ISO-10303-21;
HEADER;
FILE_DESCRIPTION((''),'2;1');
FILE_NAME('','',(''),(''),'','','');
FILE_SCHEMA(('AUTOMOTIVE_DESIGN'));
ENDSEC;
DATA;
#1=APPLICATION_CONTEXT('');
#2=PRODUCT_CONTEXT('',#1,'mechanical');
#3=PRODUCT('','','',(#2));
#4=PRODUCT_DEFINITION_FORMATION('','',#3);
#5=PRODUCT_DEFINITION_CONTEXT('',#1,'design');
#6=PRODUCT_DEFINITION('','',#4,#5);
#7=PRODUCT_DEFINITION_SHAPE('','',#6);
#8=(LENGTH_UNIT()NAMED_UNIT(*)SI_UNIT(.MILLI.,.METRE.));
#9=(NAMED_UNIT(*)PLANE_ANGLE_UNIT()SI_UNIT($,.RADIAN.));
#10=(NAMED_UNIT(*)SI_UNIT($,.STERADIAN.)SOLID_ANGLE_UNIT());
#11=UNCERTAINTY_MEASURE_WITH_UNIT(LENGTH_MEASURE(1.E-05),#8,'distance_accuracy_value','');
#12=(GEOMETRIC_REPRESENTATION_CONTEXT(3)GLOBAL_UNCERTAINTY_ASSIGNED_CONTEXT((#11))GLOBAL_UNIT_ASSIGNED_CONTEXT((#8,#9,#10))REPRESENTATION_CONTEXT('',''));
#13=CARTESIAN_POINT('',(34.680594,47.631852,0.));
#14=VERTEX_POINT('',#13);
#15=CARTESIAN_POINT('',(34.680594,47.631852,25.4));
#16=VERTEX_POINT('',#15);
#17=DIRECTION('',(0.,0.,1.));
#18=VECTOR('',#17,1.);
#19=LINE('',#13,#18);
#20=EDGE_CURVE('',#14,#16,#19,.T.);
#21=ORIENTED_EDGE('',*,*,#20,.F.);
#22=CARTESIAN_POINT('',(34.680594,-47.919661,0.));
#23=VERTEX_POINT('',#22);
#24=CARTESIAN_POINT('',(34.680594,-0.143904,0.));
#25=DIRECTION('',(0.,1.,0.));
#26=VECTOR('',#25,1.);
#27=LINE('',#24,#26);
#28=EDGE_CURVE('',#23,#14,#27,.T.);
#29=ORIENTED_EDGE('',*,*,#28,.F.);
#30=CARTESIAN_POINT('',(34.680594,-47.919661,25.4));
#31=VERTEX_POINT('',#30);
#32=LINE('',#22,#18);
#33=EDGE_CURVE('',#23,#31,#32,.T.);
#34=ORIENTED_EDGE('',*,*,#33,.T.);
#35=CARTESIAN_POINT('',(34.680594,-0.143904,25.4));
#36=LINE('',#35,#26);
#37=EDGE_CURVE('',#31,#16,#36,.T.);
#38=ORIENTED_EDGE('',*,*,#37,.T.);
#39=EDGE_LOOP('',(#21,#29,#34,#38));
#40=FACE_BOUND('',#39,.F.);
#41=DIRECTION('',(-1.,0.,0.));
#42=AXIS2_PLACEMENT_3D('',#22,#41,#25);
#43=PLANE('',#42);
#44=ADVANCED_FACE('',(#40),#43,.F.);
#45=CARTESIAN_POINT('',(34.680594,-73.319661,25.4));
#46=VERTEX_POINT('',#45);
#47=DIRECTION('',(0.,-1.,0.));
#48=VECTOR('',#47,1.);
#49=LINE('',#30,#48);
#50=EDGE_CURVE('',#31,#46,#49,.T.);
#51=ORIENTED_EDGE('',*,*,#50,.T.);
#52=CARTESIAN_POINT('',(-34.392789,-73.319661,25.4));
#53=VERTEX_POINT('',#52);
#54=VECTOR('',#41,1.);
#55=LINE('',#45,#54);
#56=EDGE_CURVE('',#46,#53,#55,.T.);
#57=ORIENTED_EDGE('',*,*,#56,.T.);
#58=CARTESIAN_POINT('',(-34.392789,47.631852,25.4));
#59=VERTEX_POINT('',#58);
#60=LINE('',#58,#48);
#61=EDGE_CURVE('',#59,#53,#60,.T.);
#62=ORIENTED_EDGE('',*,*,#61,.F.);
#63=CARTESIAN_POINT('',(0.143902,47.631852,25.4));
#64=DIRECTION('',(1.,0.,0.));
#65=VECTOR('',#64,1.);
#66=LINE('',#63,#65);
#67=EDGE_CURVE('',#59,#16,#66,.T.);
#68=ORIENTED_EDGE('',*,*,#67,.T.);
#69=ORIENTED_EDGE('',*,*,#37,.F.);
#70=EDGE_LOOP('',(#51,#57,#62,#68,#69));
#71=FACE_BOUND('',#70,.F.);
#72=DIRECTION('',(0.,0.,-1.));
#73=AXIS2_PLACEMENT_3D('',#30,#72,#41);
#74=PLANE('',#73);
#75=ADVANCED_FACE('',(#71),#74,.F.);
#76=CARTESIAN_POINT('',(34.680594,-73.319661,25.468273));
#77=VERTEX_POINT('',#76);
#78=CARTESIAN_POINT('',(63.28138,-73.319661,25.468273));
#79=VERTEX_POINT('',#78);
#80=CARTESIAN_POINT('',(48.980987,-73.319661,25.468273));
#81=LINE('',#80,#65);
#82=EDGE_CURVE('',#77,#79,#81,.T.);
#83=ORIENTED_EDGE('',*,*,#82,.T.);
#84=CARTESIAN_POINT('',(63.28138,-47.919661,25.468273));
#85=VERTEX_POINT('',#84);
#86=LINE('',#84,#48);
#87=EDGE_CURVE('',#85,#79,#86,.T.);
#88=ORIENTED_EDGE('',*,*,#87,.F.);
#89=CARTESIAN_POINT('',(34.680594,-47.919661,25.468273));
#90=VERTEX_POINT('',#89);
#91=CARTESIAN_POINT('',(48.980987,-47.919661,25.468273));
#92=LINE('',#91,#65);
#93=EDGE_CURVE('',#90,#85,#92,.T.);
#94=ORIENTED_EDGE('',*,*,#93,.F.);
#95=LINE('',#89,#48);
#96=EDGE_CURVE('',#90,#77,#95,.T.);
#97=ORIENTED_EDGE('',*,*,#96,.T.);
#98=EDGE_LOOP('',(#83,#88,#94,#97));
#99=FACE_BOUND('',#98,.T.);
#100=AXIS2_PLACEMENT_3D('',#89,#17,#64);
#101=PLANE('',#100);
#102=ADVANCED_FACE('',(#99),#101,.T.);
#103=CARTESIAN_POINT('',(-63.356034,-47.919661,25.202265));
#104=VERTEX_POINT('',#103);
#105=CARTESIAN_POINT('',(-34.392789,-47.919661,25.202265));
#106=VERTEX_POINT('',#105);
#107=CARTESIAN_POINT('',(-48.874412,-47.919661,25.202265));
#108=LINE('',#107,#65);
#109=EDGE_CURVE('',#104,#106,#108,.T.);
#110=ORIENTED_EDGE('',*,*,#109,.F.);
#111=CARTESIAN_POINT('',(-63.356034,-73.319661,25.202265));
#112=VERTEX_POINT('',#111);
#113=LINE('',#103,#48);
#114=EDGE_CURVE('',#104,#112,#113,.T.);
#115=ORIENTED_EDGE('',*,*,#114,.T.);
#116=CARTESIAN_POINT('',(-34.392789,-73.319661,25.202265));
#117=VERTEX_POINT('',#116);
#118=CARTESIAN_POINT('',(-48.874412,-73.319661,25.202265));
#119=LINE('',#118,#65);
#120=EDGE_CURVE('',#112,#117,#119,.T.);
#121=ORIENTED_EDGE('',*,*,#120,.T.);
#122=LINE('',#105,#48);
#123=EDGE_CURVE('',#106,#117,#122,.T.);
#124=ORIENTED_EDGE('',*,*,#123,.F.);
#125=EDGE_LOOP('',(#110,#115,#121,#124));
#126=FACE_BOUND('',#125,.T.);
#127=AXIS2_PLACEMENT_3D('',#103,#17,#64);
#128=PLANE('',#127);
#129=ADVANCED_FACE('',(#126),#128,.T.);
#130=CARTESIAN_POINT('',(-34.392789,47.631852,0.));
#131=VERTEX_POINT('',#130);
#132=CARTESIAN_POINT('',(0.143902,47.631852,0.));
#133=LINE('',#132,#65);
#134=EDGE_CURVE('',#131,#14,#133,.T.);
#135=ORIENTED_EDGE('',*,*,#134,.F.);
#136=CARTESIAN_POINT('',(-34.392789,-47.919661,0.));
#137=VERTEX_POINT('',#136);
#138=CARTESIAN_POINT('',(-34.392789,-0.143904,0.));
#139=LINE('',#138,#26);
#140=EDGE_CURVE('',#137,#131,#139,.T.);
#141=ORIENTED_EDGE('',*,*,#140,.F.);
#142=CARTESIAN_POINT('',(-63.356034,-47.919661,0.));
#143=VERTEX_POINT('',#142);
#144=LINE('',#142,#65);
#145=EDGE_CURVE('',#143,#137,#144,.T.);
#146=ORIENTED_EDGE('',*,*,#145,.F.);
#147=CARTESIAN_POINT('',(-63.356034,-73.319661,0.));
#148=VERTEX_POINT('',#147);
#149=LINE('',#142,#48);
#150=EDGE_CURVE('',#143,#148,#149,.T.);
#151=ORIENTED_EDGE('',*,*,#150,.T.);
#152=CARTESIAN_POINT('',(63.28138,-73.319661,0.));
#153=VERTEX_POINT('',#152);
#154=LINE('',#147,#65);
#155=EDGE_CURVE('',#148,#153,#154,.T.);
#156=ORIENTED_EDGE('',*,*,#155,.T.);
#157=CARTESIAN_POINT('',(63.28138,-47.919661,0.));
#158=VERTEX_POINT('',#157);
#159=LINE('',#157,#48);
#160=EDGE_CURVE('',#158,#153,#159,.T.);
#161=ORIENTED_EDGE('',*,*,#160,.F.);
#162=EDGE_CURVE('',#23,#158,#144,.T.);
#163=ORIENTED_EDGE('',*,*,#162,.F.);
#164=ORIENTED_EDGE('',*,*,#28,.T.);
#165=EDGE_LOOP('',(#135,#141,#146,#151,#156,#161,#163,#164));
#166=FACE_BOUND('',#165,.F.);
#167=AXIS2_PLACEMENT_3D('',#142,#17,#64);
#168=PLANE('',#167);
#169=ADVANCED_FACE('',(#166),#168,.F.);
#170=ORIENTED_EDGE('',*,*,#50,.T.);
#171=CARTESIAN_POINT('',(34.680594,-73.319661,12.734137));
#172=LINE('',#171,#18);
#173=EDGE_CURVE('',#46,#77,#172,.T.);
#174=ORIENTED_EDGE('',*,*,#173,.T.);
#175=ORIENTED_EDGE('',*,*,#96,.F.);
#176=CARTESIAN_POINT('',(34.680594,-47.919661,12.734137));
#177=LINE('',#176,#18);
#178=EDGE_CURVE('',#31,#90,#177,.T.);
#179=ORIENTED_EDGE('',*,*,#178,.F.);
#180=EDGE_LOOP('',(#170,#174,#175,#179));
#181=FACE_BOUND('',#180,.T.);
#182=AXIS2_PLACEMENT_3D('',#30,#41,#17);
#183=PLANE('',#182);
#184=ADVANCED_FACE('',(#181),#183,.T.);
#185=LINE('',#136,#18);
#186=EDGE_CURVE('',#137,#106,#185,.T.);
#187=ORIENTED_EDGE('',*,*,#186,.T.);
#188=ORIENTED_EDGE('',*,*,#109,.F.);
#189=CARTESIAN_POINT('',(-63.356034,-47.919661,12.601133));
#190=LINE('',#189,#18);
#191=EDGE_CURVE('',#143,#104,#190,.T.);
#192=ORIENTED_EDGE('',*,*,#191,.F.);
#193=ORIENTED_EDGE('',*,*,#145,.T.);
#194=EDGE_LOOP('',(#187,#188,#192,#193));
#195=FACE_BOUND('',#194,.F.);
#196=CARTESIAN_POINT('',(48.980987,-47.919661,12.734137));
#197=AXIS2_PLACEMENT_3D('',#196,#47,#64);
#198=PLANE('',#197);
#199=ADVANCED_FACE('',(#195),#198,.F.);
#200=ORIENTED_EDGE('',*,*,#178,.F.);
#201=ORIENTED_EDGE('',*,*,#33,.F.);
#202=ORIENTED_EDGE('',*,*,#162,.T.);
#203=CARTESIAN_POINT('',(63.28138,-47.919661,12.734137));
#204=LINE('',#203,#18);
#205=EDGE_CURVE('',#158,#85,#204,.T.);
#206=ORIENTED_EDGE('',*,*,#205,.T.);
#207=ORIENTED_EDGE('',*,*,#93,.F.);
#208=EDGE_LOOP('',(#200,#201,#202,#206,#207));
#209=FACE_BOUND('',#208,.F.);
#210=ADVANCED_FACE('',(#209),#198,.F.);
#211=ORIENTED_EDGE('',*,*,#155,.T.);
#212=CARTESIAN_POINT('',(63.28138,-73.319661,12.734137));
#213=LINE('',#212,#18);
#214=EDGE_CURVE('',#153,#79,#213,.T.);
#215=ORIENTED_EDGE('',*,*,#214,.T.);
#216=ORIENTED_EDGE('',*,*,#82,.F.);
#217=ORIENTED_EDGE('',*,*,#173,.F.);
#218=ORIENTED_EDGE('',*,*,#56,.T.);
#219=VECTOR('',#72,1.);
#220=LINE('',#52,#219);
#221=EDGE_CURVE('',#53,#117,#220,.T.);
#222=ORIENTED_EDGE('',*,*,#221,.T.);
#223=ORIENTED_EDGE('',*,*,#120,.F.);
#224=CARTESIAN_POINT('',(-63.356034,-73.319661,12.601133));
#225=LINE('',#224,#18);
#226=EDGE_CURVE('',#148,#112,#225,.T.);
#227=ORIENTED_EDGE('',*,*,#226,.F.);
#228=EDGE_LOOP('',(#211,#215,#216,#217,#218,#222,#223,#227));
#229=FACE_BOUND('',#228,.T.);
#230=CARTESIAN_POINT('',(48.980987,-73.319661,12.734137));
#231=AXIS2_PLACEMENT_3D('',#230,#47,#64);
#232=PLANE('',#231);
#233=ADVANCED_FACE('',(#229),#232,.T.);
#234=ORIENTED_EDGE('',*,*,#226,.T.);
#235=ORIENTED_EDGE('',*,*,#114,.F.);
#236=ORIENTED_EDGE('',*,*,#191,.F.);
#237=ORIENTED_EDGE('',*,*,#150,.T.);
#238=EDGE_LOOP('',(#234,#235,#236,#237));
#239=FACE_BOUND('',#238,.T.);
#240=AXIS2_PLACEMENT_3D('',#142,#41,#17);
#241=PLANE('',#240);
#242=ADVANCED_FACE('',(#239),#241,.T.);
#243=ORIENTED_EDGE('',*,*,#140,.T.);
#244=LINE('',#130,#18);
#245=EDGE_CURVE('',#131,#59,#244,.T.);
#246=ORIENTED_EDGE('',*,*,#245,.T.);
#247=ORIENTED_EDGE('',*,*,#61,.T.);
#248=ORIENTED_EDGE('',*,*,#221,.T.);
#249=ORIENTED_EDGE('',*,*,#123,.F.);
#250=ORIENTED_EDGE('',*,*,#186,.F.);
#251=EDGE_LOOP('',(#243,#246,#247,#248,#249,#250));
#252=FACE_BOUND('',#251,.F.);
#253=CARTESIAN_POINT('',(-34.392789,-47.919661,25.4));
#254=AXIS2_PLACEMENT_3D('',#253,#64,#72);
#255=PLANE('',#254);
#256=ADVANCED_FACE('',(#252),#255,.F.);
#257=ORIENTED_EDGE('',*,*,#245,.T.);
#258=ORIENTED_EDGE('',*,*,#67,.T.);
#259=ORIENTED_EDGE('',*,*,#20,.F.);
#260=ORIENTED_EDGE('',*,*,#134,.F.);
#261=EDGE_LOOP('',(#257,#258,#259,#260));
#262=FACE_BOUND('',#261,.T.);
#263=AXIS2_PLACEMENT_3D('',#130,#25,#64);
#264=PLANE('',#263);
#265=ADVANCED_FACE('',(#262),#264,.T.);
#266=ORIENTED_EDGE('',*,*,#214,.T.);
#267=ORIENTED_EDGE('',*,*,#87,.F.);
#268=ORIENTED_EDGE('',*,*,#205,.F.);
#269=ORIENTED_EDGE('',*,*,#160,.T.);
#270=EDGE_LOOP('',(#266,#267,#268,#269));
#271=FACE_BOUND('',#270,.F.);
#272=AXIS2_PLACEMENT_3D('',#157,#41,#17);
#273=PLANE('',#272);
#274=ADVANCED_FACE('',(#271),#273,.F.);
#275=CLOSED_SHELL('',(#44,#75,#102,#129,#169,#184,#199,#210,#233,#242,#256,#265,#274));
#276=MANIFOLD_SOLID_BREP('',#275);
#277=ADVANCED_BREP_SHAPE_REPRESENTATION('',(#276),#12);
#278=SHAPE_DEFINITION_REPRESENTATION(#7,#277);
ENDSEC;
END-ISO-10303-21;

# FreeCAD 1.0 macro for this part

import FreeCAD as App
import Part
import Sketcher

V = App.Vector
Q = App.Units.Quantity

doc = App.newDocument("Part")
body = doc.addObject("PartDesign::Body", "Body")

# Sketch on XY plane
sketch1 = doc.addObject("Sketcher::SketchObject", "Sketch")
body.addObject(sketch1)
sketch1.AttachmentSupport = (doc.XY_Plane, [""])
sketch1.MapMode = "FlatFace"
sketch1.addGeometry([
    Part.LineSegment(V(-34, 48, 0), V(-34, -48, 0)),
    Part.LineSegment(V(-34, -48, 0), V(35, -48, 0)),
    Part.LineSegment(V(35, -48, 0), V(35, 48, 0)),
    Part.LineSegment(V(35, 48, 0), V(-34, 48, 0)),
], False)
sketch1.addConstraint([
    Sketcher.Constraint("Coincident", 0, 2, 1, 1),
    Sketcher.Constraint("Coincident", 1, 2, 2, 1),
    Sketcher.Constraint("Coincident", 2, 2, 3, 1),
    Sketcher.Constraint("Coincident", 3, 2, 0, 1),
    Sketcher.Constraint("Vertical", 0),
    Sketcher.Constraint("Horizontal", 1),
    Sketcher.Constraint("Vertical", 2),
    Sketcher.Constraint("Horizontal", 3),
    Sketcher.Constraint("DistanceX", 1, 1, 1, 2, 69.073383),
    Sketcher.Constraint("DistanceY", 0, 2, 0, 1, 95.551513),
    Sketcher.Constraint("DistanceX", 0, 2, -1, 1, 34.392789),
    Sketcher.Constraint("DistanceY", 0, 2, -1, 1, 47.919661),
])
pad1 = doc.addObject("PartDesign::Pad", "Pad")
body.addObject(pad1)
pad1.Profile = sketch1
pad1.Length = Q("1 in")

# Sketch on XZ plane
sketch2 = doc.addObject("Sketcher::SketchObject", "Sketch001")
body.addObject(sketch2)
sketch2.AttachmentSupport = (doc.XZ_Plane, [""])
sketch2.MapMode = "FlatFace"
sketch2.AttachmentOffset = App.Placement(V(0, 0, 47.919661), App.Rotation())
sketch2.addGeometry([
    Part.LineSegment(V(34.68, 25.47, 0), V(34.68, 25.4, 0)),  # 0
    Part.LineSegment(V(34.68, 25.4, 0), V(-34.39, 25.4, 0)),  # 1
    Part.LineSegment(V(-34.39, 25.4, 0), V(-34.39, 25.2, 0)),  # 2
    Part.LineSegment(V(-34.39, 25.2, 0), V(-63.36, 25.2, 0)),  # 3
    Part.LineSegment(V(-63.36, 25.2, 0), V(-63.36, 0, 0)),  # 4
    Part.LineSegment(V(-63.36, 0, 0), V(63.28, 0, 0)),  # 5
    Part.LineSegment(V(63.28, 0, 0), V(63.28, 25.47, 0)),  # 6
    Part.LineSegment(V(63.28, 25.47, 0), V(34.68, 25.47, 0)),  # 7
], False)
sketch2.addConstraint([
    Sketcher.Constraint("Coincident", 0, 2, 1, 1),
    Sketcher.Constraint("Coincident", 1, 2, 2, 1),
    Sketcher.Constraint("Coincident", 2, 2, 3, 1),
    Sketcher.Constraint("Coincident", 3, 2, 4, 1),
    Sketcher.Constraint("Coincident", 4, 2, 5, 1),
    Sketcher.Constraint("Coincident", 5, 2, 6, 1),
    Sketcher.Constraint("Coincident", 6, 2, 7, 1),
    Sketcher.Constraint("Coincident", 7, 2, 0, 1),
    Sketcher.Constraint("Vertical", 0),
    Sketcher.Constraint("Horizontal", 1),
    Sketcher.Constraint("Vertical", 2),
    Sketcher.Constraint("Horizontal", 3),
    Sketcher.Constraint("Vertical", 4),
    Sketcher.Constraint("Horizontal", 5),
    Sketcher.Constraint("Vertical", 6),
    Sketcher.Constraint("Horizontal", 7),
    Sketcher.Constraint("PointOnObject", 4, 2, -1),
    Sketcher.Constraint("DistanceY", -1, 1, 0, 2, Q("1 in")),
    Sketcher.Constraint("DistanceX", 1, 2, 1, 1, 69.073383),
    Sketcher.Constraint("DistanceX", 3, 2, 3, 1, 28.963245),
    Sketcher.Constraint("DistanceX", 5, 1, 5, 2, 126.637414),
    Sketcher.Constraint("DistanceY", 0, 2, 0, 1, 0.068273),
    Sketcher.Constraint("DistanceY", 2, 2, 2, 1, 0.197735),
    Sketcher.Constraint("DistanceX", 1, 2, -1, 1, 34.392789),
])
pad2 = doc.addObject("PartDesign::Pad", "Pad001")
body.addObject(pad2)
pad2.Profile = sketch2
pad2.Length = Q("1 in")

doc.recompute()
